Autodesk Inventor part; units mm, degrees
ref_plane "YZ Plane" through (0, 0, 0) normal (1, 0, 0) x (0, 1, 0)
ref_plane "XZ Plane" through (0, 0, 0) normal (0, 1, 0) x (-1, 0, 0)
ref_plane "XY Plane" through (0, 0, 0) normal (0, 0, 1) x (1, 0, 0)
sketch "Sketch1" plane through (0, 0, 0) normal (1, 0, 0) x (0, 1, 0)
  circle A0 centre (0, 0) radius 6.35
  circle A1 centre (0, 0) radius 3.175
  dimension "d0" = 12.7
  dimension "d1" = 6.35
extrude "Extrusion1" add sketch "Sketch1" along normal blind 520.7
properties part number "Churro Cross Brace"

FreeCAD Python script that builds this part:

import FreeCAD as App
import Part
import Sketcher

V = App.Vector
Q = App.Units.Quantity

doc = App.newDocument("Part")
body = doc.addObject("PartDesign::Body", "Body")

sketch1 = doc.addObject("Sketcher::SketchObject", "Sketch")
body.addObject(sketch1)
sketch1.AttachmentSupport = (doc.YZ_Plane, [""])
sketch1.MapMode = "FlatFace"
sketch1.addGeometry([
    Part.Circle(V(0, 0, 0), V(0, 0, 1), 6.35),
    Part.Circle(V(0, 0, 0), V(0, 0, 1), 3.175),
], False)
sketch1.addConstraint([
    Sketcher.Constraint("Coincident", 0, 3, -1, 1),
    Sketcher.Constraint("Coincident", 1, 3, -1, 1),
    Sketcher.Constraint("Diameter", 0, Q("0.5 in")),
    Sketcher.Constraint("Diameter", 1, Q("0.25 in")),
])
pad1 = doc.addObject("PartDesign::Pad", "Pad")
body.addObject(pad1)
pad1.Profile = sketch1
pad1.Length = Q("20.5 in")

doc.recompute()
